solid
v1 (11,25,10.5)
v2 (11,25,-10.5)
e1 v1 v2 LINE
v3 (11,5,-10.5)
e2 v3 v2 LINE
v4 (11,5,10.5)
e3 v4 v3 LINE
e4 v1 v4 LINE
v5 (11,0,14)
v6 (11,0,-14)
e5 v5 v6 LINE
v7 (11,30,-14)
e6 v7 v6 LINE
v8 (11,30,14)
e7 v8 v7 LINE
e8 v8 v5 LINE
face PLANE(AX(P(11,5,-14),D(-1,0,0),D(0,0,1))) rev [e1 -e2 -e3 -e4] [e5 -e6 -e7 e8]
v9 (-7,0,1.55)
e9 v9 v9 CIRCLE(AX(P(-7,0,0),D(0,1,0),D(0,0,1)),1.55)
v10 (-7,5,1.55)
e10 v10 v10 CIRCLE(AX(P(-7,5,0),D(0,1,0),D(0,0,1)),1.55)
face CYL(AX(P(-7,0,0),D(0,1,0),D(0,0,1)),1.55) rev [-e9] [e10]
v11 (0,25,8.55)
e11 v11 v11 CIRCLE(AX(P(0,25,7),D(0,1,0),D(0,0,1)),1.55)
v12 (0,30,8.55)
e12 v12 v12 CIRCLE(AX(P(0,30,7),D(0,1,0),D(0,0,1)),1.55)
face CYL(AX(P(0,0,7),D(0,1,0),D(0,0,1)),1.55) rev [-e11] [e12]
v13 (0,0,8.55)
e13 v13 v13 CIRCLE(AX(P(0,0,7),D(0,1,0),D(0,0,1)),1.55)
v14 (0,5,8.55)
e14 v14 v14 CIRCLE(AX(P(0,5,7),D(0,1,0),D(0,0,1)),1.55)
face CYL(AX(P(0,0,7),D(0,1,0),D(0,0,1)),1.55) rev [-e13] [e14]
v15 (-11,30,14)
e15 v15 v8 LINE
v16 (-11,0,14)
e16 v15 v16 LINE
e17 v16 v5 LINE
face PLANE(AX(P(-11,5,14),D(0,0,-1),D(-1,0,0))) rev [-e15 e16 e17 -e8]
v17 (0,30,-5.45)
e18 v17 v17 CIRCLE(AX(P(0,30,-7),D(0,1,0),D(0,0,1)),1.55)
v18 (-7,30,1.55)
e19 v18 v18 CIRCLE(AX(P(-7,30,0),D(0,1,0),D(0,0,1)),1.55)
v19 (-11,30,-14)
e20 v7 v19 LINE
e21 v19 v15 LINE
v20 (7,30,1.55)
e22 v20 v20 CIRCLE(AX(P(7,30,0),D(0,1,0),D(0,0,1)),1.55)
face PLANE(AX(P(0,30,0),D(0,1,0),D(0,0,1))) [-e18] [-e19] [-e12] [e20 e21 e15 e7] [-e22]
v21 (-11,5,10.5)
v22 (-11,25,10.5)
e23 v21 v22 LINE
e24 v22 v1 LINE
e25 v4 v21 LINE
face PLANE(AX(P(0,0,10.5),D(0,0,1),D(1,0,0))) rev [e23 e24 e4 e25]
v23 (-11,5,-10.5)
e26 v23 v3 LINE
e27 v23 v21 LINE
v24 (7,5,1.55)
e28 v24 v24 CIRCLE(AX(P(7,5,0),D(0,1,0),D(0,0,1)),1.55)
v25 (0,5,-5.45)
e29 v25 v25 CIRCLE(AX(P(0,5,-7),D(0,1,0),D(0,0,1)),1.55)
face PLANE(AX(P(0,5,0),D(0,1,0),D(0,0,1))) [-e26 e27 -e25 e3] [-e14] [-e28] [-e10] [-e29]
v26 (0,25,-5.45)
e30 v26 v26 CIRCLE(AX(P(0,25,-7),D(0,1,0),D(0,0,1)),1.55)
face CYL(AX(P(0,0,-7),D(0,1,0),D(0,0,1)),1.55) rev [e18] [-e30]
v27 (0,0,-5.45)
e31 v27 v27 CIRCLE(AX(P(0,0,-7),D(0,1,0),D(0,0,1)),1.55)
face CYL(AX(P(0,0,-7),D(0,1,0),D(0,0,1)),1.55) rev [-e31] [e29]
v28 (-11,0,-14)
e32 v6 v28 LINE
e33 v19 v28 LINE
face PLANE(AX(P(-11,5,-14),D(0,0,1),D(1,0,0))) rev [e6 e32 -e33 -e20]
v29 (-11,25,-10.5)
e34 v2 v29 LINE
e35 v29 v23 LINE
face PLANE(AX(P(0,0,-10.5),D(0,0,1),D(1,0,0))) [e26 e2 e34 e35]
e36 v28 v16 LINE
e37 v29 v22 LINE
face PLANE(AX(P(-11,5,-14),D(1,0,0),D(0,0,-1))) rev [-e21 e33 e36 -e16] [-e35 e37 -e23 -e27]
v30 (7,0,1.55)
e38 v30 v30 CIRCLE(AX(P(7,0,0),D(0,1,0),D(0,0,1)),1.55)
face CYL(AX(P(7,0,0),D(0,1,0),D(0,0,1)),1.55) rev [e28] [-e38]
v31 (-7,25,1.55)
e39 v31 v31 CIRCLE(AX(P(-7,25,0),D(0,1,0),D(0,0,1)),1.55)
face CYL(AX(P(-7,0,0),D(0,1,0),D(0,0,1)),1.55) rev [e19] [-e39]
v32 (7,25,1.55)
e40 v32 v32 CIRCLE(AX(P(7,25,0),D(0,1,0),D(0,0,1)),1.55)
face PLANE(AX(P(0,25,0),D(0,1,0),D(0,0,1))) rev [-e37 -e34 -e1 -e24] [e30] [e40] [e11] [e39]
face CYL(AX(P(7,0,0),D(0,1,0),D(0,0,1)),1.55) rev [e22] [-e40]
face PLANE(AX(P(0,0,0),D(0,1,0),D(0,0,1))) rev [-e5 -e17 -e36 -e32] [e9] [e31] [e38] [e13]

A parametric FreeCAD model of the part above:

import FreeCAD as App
import Part
import Sketcher

V = App.Vector

doc = App.newDocument("Part")
params = doc.addObject("Spreadsheet::Sheet", "Params")
for row, (alias, value) in enumerate([
    ("sketch1_width", "22 mm"),
    ("sketch1_height", "28 mm"),
    ("pad1_length", "5 mm"),
    ("sketch2_width", "22 mm"),
    ("sketch2_height", "5 mm"),
    ("pad2_length", "20 mm"),
    ("sketch3_width", "22 mm"),
    ("sketch3_height", "28 mm"),
    ("pad3_length", "5 mm"),
    ("sketch4_diameter", "3.1 mm"),
    ("pocket1_length", "30 mm"),
    ("sketch5_width", "22 mm"),
    ("sketch5_height", "20 mm"),
    ("pocket2_length", "1.5 mm"),
    ("sketch6_width", "22 mm"),
    ("sketch6_height", "20 mm"),
    ("pocket3_length", "1.5 mm"),
], start=1):
    params.set(f"A{row}", alias)
    params.set(f"B{row}", "=" + value)
    params.setAlias(f"B{row}", alias)

body = doc.addObject("PartDesign::Body", "Body")

# Sketch on XZ plane
sketch1 = body.newObject("Sketcher::SketchObject", "Sketch")
sketch1.AttachmentSupport = (doc.getObject("XZ_Plane"), [""])
sketch1.MapMode = "FlatFace"
sketch1.addGeometry([
    Part.LineSegment(V(-11, -14, 0), V(-11, 14, 0)),
    Part.LineSegment(V(-11, 14, 0), V(11, 14, 0)),
    Part.LineSegment(V(11, 14, 0), V(11, -14, 0)),
    Part.LineSegment(V(11, -14, 0), V(-11, -14, 0)),
], False)
sketch1.addConstraint([
    Sketcher.Constraint("Coincident", 0, 2, 1, 1),
    Sketcher.Constraint("Coincident", 1, 2, 2, 1),
    Sketcher.Constraint("Coincident", 2, 2, 3, 1),
    Sketcher.Constraint("Coincident", 3, 2, 0, 1),
    Sketcher.Constraint("Vertical", 0),
    Sketcher.Constraint("Horizontal", 1),
    Sketcher.Constraint("Vertical", 2),
    Sketcher.Constraint("Horizontal", 3),
    Sketcher.Constraint("Symmetric", 0, 2, 2, 2, -1, 1),
    Sketcher.Constraint("DistanceX", 1, 1, 1, 2, 22.0),
    Sketcher.Constraint("DistanceY", 0, 1, 0, 2, 28.0),
])
sketch1.setExpression("Constraints[9]", "Params.sketch1_width")
sketch1.setExpression("Constraints[10]", "Params.sketch1_height")
pad1 = body.newObject("PartDesign::Pad", "Pad")
pad1.Profile = sketch1
pad1.setExpression("Length", "Params.pad1_length")
pad1.Reversed = True

# Sketch on XZ plane
sketch2 = body.newObject("Sketcher::SketchObject", "Sketch001")
sketch2.AttachmentSupport = (doc.getObject("XZ_Plane"), [""])
sketch2.MapMode = "FlatFace"
sketch2.AttachmentOffset = App.Placement(V(0, 0, -5), App.Rotation())
sketch2.addGeometry([
    Part.LineSegment(V(-11, 9, 0), V(-11, 14, 0)),  # 0
    Part.LineSegment(V(-11, 14, 0), V(11, 14, 0)),  # 1
    Part.LineSegment(V(11, 14, 0), V(11, 9, 0)),  # 2
    Part.LineSegment(V(11, 9, 0), V(-11, 9, 0)),  # 3
    Part.LineSegment(V(-11, -14, 0), V(-11, -9, 0)),  # 4
    Part.LineSegment(V(-11, -9, 0), V(11, -9, 0)),  # 5
    Part.LineSegment(V(11, -9, 0), V(11, -14, 0)),  # 6
    Part.LineSegment(V(11, -14, 0), V(-11, -14, 0)),  # 7
], False)
sketch2.addConstraint([
    Sketcher.Constraint("Coincident", 0, 2, 1, 1),
    Sketcher.Constraint("Coincident", 1, 2, 2, 1),
    Sketcher.Constraint("Coincident", 2, 2, 3, 1),
    Sketcher.Constraint("Coincident", 3, 2, 0, 1),
    Sketcher.Constraint("Coincident", 4, 2, 5, 1),
    Sketcher.Constraint("Coincident", 5, 2, 6, 1),
    Sketcher.Constraint("Coincident", 6, 2, 7, 1),
    Sketcher.Constraint("Coincident", 7, 2, 4, 1),
    Sketcher.Constraint("Vertical", 0),
    Sketcher.Constraint("Horizontal", 1),
    Sketcher.Constraint("Vertical", 2),
    Sketcher.Constraint("Horizontal", 3),
    Sketcher.Constraint("Vertical", 4),
    Sketcher.Constraint("Horizontal", 5),
    Sketcher.Constraint("Vertical", 6),
    Sketcher.Constraint("Horizontal", 7),
    Sketcher.Constraint("Symmetric", 2, 2, 4, 2, -1, 1),
    Sketcher.Constraint("Symmetric", 0, 2, 6, 2, -1, 1),
    Sketcher.Constraint("Vertical", 3, 2, 4, 2),
    Sketcher.Constraint("DistanceX", 1, 1, 1, 2, 22.0),
    Sketcher.Constraint("DistanceY", 0, 1, 0, 2, 5.0),
    Sketcher.Constraint("DistanceY", -1, 1, 0, 2, 14.0),
])
sketch2.setExpression("Constraints[19]", "Params.sketch2_width")
sketch2.setExpression("Constraints[20]", "Params.sketch2_height")
pad2 = body.newObject("PartDesign::Pad", "Pad001")
pad2.Profile = sketch2
pad2.setExpression("Length", "Params.pad2_length")
pad2.Reversed = True

# Sketch on XZ plane
sketch3 = body.newObject("Sketcher::SketchObject", "Sketch002")
sketch3.AttachmentSupport = (doc.getObject("XZ_Plane"), [""])
sketch3.MapMode = "FlatFace"
sketch3.AttachmentOffset = App.Placement(V(0, 0, -25), App.Rotation())
sketch3.addGeometry([
    Part.LineSegment(V(-11, -14, 0), V(-11, 14, 0)),
    Part.LineSegment(V(-11, 14, 0), V(11, 14, 0)),
    Part.LineSegment(V(11, 14, 0), V(11, -14, 0)),
    Part.LineSegment(V(11, -14, 0), V(-11, -14, 0)),
], False)
sketch3.addConstraint([
    Sketcher.Constraint("Coincident", 0, 2, 1, 1),
    Sketcher.Constraint("Coincident", 1, 2, 2, 1),
    Sketcher.Constraint("Coincident", 2, 2, 3, 1),
    Sketcher.Constraint("Coincident", 3, 2, 0, 1),
    Sketcher.Constraint("Vertical", 0),
    Sketcher.Constraint("Horizontal", 1),
    Sketcher.Constraint("Vertical", 2),
    Sketcher.Constraint("Horizontal", 3),
    Sketcher.Constraint("Symmetric", 0, 2, 2, 2, -1, 1),
    Sketcher.Constraint("DistanceX", 1, 1, 1, 2, 22.0),
    Sketcher.Constraint("DistanceY", 0, 1, 0, 2, 28.0),
])
sketch3.setExpression("Constraints[9]", "Params.sketch3_width")
sketch3.setExpression("Constraints[10]", "Params.sketch3_height")
pad3 = body.newObject("PartDesign::Pad", "Pad002")
pad3.Profile = sketch3
pad3.setExpression("Length", "Params.pad3_length")
pad3.Reversed = True

# Sketch on XZ plane
sketch4 = body.newObject("Sketcher::SketchObject", "Sketch003")
sketch4.AttachmentSupport = (doc.getObject("XZ_Plane"), [""])
sketch4.MapMode = "FlatFace"
sketch4.AttachmentOffset = App.Placement(V(0, 0, -30), App.Rotation())
sketch4.addGeometry([
    Part.Circle(V(0, -7, 0), V(0, 0, 1), 1.6),
    Part.Circle(V(7, 0, 0), V(0, 0, 1), 1.6),
    Part.Circle(V(0, 7, 0), V(0, 0, 1), 1.6),
    Part.Circle(V(-7, 0, 0), V(0, 0, 1), 1.6),
], False)
sketch4.addConstraint([
    Sketcher.Constraint("Equal", 0, 1),
    Sketcher.Constraint("Equal", 1, 2),
    Sketcher.Constraint("Equal", 2, 3),
    Sketcher.Constraint("Symmetric", 0, 3, 2, 3, -1, 1),
    Sketcher.Constraint("Symmetric", 1, 3, 3, 3, -1, 1),
    Sketcher.Constraint("PointOnObject", 0, 3, -2),
    Sketcher.Constraint("PointOnObject", 1, 3, -1),
    Sketcher.Constraint("Diameter", 0, 3.1),
    Sketcher.Constraint("DistanceY", 0, 3, -1, 1, 7.0),
    Sketcher.Constraint("DistanceX", -1, 1, 1, 3, 7.0),
])
sketch4.setExpression("Constraints[7]", "Params.sketch4_diameter")
pocket1 = body.newObject("PartDesign::Pocket", "Pocket")
pocket1.Profile = sketch4
pocket1.setExpression("Length", "Params.pocket1_length")
pocket1.Reversed = True

# Sketch on XY plane
sketch5 = body.newObject("Sketcher::SketchObject", "Sketch004")
sketch5.AttachmentSupport = (doc.getObject("XY_Plane"), [""])
sketch5.MapMode = "FlatFace"
sketch5.AttachmentOffset = App.Placement(V(0, 0, -9), App.Rotation())
sketch5.addGeometry([
    Part.LineSegment(V(-11, 25, 0), V(-11, 5, 0)),
    Part.LineSegment(V(-11, 5, 0), V(11, 5, 0)),
    Part.LineSegment(V(11, 5, 0), V(11, 25, 0)),
    Part.LineSegment(V(11, 25, 0), V(-11, 25, 0)),
], False)
sketch5.addConstraint([
    Sketcher.Constraint("Coincident", 0, 2, 1, 1),
    Sketcher.Constraint("Coincident", 1, 2, 2, 1),
    Sketcher.Constraint("Coincident", 2, 2, 3, 1),
    Sketcher.Constraint("Coincident", 3, 2, 0, 1),
    Sketcher.Constraint("Vertical", 0),
    Sketcher.Constraint("Horizontal", 1),
    Sketcher.Constraint("Vertical", 2),
    Sketcher.Constraint("Horizontal", 3),
    Sketcher.Constraint("DistanceX", 1, 1, 1, 2, 22.0),
    Sketcher.Constraint("DistanceY", 0, 2, 0, 1, 20.0),
    Sketcher.Constraint("DistanceX", 0, 2, -1, 1, 11.0),
    Sketcher.Constraint("DistanceY", -1, 1, 0, 2, 5.0),
])
sketch5.setExpression("Constraints[8]", "Params.sketch5_width")
sketch5.setExpression("Constraints[9]", "Params.sketch5_height")
pocket2 = body.newObject("PartDesign::Pocket", "Pocket001")
pocket2.Profile = sketch5
pocket2.setExpression("Length", "Params.pocket2_length")

# Sketch on XY plane
sketch6 = body.newObject("Sketcher::SketchObject", "Sketch005")
sketch6.AttachmentSupport = (doc.getObject("XY_Plane"), [""])
sketch6.MapMode = "FlatFace"
sketch6.AttachmentOffset = App.Placement(V(0, 0, 9), App.Rotation())
sketch6.addGeometry([
    Part.LineSegment(V(11, 25, 0), V(11, 5, 0)),
    Part.LineSegment(V(11, 5, 0), V(-11, 5, 0)),
    Part.LineSegment(V(-11, 5, 0), V(-11, 25, 0)),
    Part.LineSegment(V(-11, 25, 0), V(11, 25, 0)),
], False)
sketch6.addConstraint([
    Sketcher.Constraint("Coincident", 0, 2, 1, 1),
    Sketcher.Constraint("Coincident", 1, 2, 2, 1),
    Sketcher.Constraint("Coincident", 2, 2, 3, 1),
    Sketcher.Constraint("Coincident", 3, 2, 0, 1),
    Sketcher.Constraint("Vertical", 0),
    Sketcher.Constraint("Horizontal", 1),
    Sketcher.Constraint("Vertical", 2),
    Sketcher.Constraint("Horizontal", 3),
    Sketcher.Constraint("DistanceX", 1, 2, 1, 1, 22.0),
    Sketcher.Constraint("DistanceY", 0, 2, 0, 1, 20.0),
    Sketcher.Constraint("DistanceX", -1, 1, 0, 2, 11.0),
    Sketcher.Constraint("DistanceY", -1, 1, 0, 2, 5.0),
])
sketch6.setExpression("Constraints[8]", "Params.sketch6_width")
sketch6.setExpression("Constraints[9]", "Params.sketch6_height")
pocket3 = body.newObject("PartDesign::Pocket", "Pocket002")
pocket3.Profile = sketch6
pocket3.setExpression("Length", "Params.pocket3_length")
pocket3.Reversed = True

doc.recompute()
